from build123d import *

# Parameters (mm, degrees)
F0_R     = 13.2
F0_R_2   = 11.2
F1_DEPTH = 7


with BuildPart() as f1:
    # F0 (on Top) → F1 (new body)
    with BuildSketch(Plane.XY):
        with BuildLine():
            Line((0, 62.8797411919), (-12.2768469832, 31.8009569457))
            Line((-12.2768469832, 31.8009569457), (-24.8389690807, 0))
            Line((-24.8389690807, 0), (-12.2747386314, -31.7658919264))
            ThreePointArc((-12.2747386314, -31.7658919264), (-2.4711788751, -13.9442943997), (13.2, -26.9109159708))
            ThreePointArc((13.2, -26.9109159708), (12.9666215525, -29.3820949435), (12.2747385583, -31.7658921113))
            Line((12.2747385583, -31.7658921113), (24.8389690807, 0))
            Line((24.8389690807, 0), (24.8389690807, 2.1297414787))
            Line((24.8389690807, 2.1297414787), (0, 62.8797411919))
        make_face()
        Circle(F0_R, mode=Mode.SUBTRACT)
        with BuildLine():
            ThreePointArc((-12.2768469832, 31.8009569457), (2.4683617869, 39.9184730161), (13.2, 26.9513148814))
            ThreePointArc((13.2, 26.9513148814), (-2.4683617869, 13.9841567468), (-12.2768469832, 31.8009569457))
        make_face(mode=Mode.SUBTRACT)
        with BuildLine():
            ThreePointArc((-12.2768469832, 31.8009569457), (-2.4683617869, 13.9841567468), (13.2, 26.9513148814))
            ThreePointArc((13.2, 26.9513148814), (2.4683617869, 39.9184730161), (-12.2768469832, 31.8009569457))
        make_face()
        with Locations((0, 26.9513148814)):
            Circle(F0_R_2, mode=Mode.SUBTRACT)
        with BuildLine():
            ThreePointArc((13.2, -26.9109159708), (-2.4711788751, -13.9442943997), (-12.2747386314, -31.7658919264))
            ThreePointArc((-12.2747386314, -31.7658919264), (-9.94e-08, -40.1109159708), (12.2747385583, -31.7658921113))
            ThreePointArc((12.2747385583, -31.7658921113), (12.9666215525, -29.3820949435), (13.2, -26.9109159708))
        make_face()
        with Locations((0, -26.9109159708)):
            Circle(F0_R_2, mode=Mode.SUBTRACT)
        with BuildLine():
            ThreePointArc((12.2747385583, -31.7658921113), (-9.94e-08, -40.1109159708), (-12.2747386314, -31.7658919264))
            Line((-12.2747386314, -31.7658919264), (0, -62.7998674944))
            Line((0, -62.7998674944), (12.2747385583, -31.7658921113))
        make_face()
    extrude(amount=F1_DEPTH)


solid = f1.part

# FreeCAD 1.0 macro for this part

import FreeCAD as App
import Part
import Sketcher
Q = App.Units.Quantity

doc = App.newDocument("Part")
body = doc.addObject("PartDesign::Body", "Body")

# Sketch on XY plane
sketch1 = body.newObject("Sketcher::SketchObject", "Sketch")
sketch1.AttachmentSupport = (doc.getObject("XY_Plane"), [""])
sketch1.MapMode = "FlatFace"
sketch1.addGeometry(Part.LineSegment(App.Vector(24.8, 0, 0), App.Vector(24.8, 2.1, 0)), False)
sketch1.addGeometry(Part.LineSegment(App.Vector(24.8, 2.1, 0), App.Vector(0, 62.9, 0)), False)
sketch1.addGeometry(Part.LineSegment(App.Vector(0, 62.9, 0), App.Vector(-24.8, 0, 0)), False)
sketch1.addGeometry(Part.LineSegment(App.Vector(-24.8, 0, 0), App.Vector(-12.3, -31.8, 0)), False)
sketch1.addGeometry(Part.LineSegment(App.Vector(-12.3, -31.8, 0), App.Vector(0, -62.8, 0)), False)
sketch1.addGeometry(Part.LineSegment(App.Vector(0, -62.8, 0), App.Vector(12.3, -31.8, 0)), False)
sketch1.addGeometry(Part.LineSegment(App.Vector(12.3, -31.8, 0), App.Vector(24.8, 0, 0)), False)
sketch1.addGeometry(Part.Circle(App.Vector(0, -26.9, 0), App.Vector(0, 0, 1), 11.2), False)
sketch1.addGeometry(Part.Circle(App.Vector(0, 0, 0), App.Vector(0, 0, 1), 13.2), False)
sketch1.addGeometry(Part.Circle(App.Vector(0, 27, 0), App.Vector(0, 0, 1), 11.2), False)
sketch1.addConstraint(Sketcher.Constraint("Coincident", 0, 2, 1, 1))
sketch1.addConstraint(Sketcher.Constraint("Coincident", 1, 2, 2, 1))
sketch1.addConstraint(Sketcher.Constraint("Coincident", 2, 2, 3, 1))
sketch1.addConstraint(Sketcher.Constraint("Coincident", 3, 2, 4, 1))
sketch1.addConstraint(Sketcher.Constraint("Coincident", 4, 2, 5, 1))
sketch1.addConstraint(Sketcher.Constraint("Coincident", 5, 2, 6, 1))
sketch1.addConstraint(Sketcher.Constraint("Coincident", 6, 2, 0, 1))
sketch1.addConstraint(Sketcher.Constraint("Vertical", 0))
sketch1.addConstraint(Sketcher.Constraint("Coincident", 8, 3, -1, 1))
sketch1.addConstraint(Sketcher.Constraint("Equal", 7, 9))
sketch1.addConstraint(Sketcher.Constraint("Symmetric", 2, 2, 6, 2, -1, 1))
sketch1.addConstraint(Sketcher.Constraint("Symmetric", 3, 2, 5, 2, -2))
sketch1.addConstraint(Sketcher.Constraint("PointOnObject", 7, 3, -2))
sketch1.addConstraint(Sketcher.Constraint("PointOnObject", 9, 3, -2))
sketch1.addConstraint(Sketcher.Constraint("PointOnObject", 1, 2, -2))
sketch1.addConstraint(Sketcher.Constraint("PointOnObject", 2, 2, -1))
sketch1.addConstraint(Sketcher.Constraint("PointOnObject", 4, 2, -2))
sketch1.addConstraint(Sketcher.Constraint("Parallel", 3, 4))
sketch1.addConstraint(Sketcher.Constraint("Diameter", 7, Q("22.4 mm")))
sketch1.addConstraint(Sketcher.Constraint("Diameter", 8, Q("26.4 mm")))
sketch1.addConstraint(Sketcher.Constraint("DistanceY", 0, 2, 1, 2, Q("60.75 mm")))
sketch1.addConstraint(Sketcher.Constraint("DistanceY", 0, 1, 0, 2, Q("2.129741 mm")))
sketch1.addConstraint(Sketcher.Constraint("Distance", 1, Q("65.631828 mm")))
sketch1.addConstraint(Sketcher.Constraint("DistanceX", 3, 2, -1, 1, Q("12.274739 mm")))
sketch1.addConstraint(Sketcher.Constraint("DistanceY", 3, 2, -1, 1, Q("31.765892 mm")))
sketch1.addConstraint(Sketcher.Constraint("DistanceY", 7, 3, 9, 3, Q("53.862231 mm")))
sketch1.addConstraint(Sketcher.Constraint("DistanceY", 4, 2, 7, 3, Q("35.888952 mm")))
pad1 = body.newObject("PartDesign::Pad", "Pad")
pad1.Profile = sketch1
pad1.Length = 7

doc.recompute()
